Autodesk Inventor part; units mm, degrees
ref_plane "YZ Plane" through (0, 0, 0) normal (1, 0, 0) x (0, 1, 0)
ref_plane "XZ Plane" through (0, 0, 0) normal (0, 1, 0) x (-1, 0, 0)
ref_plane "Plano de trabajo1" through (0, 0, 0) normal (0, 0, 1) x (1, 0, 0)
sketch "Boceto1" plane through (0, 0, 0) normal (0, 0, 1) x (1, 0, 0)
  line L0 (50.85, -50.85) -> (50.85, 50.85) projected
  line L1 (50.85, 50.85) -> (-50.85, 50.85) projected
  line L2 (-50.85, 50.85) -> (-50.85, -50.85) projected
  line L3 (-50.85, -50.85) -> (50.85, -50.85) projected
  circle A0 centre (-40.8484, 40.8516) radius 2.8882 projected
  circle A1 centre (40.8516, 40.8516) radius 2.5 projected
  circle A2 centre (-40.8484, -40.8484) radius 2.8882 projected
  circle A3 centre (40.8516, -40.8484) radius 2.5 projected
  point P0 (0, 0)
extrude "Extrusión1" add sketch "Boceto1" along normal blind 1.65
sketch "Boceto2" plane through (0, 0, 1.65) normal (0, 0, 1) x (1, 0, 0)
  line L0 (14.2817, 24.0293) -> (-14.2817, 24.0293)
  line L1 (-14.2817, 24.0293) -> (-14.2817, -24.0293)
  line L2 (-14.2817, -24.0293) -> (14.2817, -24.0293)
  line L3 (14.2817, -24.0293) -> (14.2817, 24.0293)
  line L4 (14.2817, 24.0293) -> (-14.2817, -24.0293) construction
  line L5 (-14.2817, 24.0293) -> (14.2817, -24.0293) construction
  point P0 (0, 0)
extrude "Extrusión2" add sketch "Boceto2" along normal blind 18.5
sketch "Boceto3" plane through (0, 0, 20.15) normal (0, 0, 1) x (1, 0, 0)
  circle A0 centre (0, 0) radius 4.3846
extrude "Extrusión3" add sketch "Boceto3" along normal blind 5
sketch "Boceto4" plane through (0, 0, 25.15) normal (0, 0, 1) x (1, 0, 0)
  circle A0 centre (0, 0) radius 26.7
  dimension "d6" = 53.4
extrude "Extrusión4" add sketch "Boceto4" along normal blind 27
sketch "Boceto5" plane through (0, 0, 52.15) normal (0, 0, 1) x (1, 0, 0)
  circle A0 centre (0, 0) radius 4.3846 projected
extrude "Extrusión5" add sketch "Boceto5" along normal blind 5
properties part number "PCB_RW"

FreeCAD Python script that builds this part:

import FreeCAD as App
import Part
import Sketcher

V = App.Vector


def add_polygon(sketch, points):
    """Adds a closed chain of lines whose ends are joined by coincident constraints."""
    first, n = sketch.GeometryCount, len(points)
    for a, b in zip(points, points[1:] + points[:1]):
        sketch.addGeometry(Part.LineSegment(App.Vector(*a, 0), App.Vector(*b, 0)), False)
    for i in range(n):
        sketch.addConstraint(Sketcher.Constraint("Coincident", first + i, 2, first + (i + 1) % n, 1))

doc = App.newDocument("Part")
body = doc.addObject("PartDesign::Body", "Body")

# Sketch on XY plane
sketch1 = doc.addObject("Sketcher::SketchObject", "Sketch")
body.addObject(sketch1)
sketch1.AttachmentSupport = (doc.XY_Plane, [""])
sketch1.MapMode = "FlatFace"
add_polygon(sketch1, [(-50.85, -50.85), (50.85, -50.85), (50.85, 50.85), (-50.85, 50.85)])  # lines 0-3
sketch1.addGeometry(Part.Circle(V(-40.8484, -40.8484, 0), V(0, 0, 1), 2.8882), False)  # 4
sketch1.addGeometry(Part.Circle(V(40.8516, -40.8484, 0), V(0, 0, 1), 2.5), False)  # 5
sketch1.addGeometry(Part.Circle(V(-40.8484, 40.8516, 0), V(0, 0, 1), 2.8882), False)  # 6
sketch1.addGeometry(Part.Circle(V(40.8516, 40.8516, 0), V(0, 0, 1), 2.5), False)  # 7
sketch1.addConstraint([
    Sketcher.Constraint("Horizontal", 0),
    Sketcher.Constraint("Vertical", 1),
    Sketcher.Constraint("Horizontal", 2),
    Sketcher.Constraint("Vertical", 3),
    Sketcher.Constraint("Equal", 4, 6),
    Sketcher.Constraint("Equal", 5, 7),
    Sketcher.Constraint("Symmetric", 0, 2, 2, 2, -1, 1),
    Sketcher.Constraint("Horizontal", 4, 3, 5, 3),
    Sketcher.Constraint("Horizontal", 6, 3, 7, 3),
    Sketcher.Constraint("Vertical", 4, 3, 6, 3),
    Sketcher.Constraint("Vertical", 5, 3, 7, 3),
    Sketcher.Constraint("Equal", 2, 1),
    Sketcher.Constraint("Diameter", 5, 5.0),
    Sketcher.Constraint("DistanceX", 0, 1, 0, 2, 101.7),
    Sketcher.Constraint("Diameter", 4, 5.7764),
    Sketcher.Constraint("DistanceX", 4, 3, 5, 3, 81.7),
    Sketcher.Constraint("DistanceY", 4, 3, 6, 3, 81.7),
    Sketcher.Constraint("DistanceX", 4, 3, -1, 1, 40.8484),
    Sketcher.Constraint("DistanceY", 4, 3, -1, 1, 40.8484),
])
pad1 = doc.addObject("PartDesign::Pad", "Pad")
body.addObject(pad1)
pad1.Profile = sketch1
pad1.Length = 1.65

# Sketch on XY plane
sketch2 = doc.addObject("Sketcher::SketchObject", "Sketch001")
body.addObject(sketch2)
sketch2.AttachmentSupport = (doc.XY_Plane, [""])
sketch2.MapMode = "FlatFace"
sketch2.AttachmentOffset = App.Placement(V(0, 0, 1.65), App.Rotation())
add_polygon(sketch2, [(14.2817, -24.0293), (14.2817, 24.0293), (-14.2817, 24.0293), (-14.2817, -24.0293)])  # lines 0-3
sketch2.addConstraint([
    Sketcher.Constraint("Vertical", 0),
    Sketcher.Constraint("Horizontal", 1),
    Sketcher.Constraint("Vertical", 2),
    Sketcher.Constraint("Horizontal", 3),
    Sketcher.Constraint("Symmetric", 0, 2, 2, 2, -1, 1),
    Sketcher.Constraint("DistanceX", 1, 2, 1, 1, 28.5634),
    Sketcher.Constraint("DistanceY", 0, 1, 0, 2, 48.0586),
])
pad2 = doc.addObject("PartDesign::Pad", "Pad001")
body.addObject(pad2)
pad2.Profile = sketch2
pad2.Length = 18.5

# Sketch on XY plane
sketch3 = doc.addObject("Sketcher::SketchObject", "Sketch002")
body.addObject(sketch3)
sketch3.AttachmentSupport = (doc.XY_Plane, [""])
sketch3.MapMode = "FlatFace"
sketch3.AttachmentOffset = App.Placement(V(0, 0, 20.15), App.Rotation())
sketch3.addGeometry(Part.Circle(V(0, 0, 0), V(0, 0, 1), 4.3846), False)
sketch3.addConstraint([
    Sketcher.Constraint("Coincident", 0, 3, -1, 1),
    Sketcher.Constraint("Diameter", 0, 8.7692),
])
pad3 = doc.addObject("PartDesign::Pad", "Pad002")
body.addObject(pad3)
pad3.Profile = sketch3
pad3.Length = 5

# Sketch on XY plane
sketch4 = doc.addObject("Sketcher::SketchObject", "Sketch003")
body.addObject(sketch4)
sketch4.AttachmentSupport = (doc.XY_Plane, [""])
sketch4.MapMode = "FlatFace"
sketch4.AttachmentOffset = App.Placement(V(0, 0, 25.15), App.Rotation())
sketch4.addGeometry(Part.Circle(V(0, 0, 0), V(0, 0, 1), 26.7), False)
sketch4.addConstraint([
    Sketcher.Constraint("Coincident", 0, 3, -1, 1),
    Sketcher.Constraint("Diameter", 0, 53.4),
])
pad4 = doc.addObject("PartDesign::Pad", "Pad003")
body.addObject(pad4)
pad4.Profile = sketch4
pad4.Length = 27

# Sketch on XY plane
sketch5 = doc.addObject("Sketcher::SketchObject", "Sketch004")
body.addObject(sketch5)
sketch5.AttachmentSupport = (doc.XY_Plane, [""])
sketch5.MapMode = "FlatFace"
sketch5.AttachmentOffset = App.Placement(V(0, 0, 52.15), App.Rotation())
sketch5.addGeometry(Part.Circle(V(0, 0, 0), V(0, 0, 1), 4.3846), False)
sketch5.addConstraint([
    Sketcher.Constraint("Coincident", 0, 3, -1, 1),
    Sketcher.Constraint("Diameter", 0, 8.7692),
])
pad5 = doc.addObject("PartDesign::Pad", "Pad004")
body.addObject(pad5)
pad5.Profile = sketch5
pad5.Length = 5

doc.recompute()
